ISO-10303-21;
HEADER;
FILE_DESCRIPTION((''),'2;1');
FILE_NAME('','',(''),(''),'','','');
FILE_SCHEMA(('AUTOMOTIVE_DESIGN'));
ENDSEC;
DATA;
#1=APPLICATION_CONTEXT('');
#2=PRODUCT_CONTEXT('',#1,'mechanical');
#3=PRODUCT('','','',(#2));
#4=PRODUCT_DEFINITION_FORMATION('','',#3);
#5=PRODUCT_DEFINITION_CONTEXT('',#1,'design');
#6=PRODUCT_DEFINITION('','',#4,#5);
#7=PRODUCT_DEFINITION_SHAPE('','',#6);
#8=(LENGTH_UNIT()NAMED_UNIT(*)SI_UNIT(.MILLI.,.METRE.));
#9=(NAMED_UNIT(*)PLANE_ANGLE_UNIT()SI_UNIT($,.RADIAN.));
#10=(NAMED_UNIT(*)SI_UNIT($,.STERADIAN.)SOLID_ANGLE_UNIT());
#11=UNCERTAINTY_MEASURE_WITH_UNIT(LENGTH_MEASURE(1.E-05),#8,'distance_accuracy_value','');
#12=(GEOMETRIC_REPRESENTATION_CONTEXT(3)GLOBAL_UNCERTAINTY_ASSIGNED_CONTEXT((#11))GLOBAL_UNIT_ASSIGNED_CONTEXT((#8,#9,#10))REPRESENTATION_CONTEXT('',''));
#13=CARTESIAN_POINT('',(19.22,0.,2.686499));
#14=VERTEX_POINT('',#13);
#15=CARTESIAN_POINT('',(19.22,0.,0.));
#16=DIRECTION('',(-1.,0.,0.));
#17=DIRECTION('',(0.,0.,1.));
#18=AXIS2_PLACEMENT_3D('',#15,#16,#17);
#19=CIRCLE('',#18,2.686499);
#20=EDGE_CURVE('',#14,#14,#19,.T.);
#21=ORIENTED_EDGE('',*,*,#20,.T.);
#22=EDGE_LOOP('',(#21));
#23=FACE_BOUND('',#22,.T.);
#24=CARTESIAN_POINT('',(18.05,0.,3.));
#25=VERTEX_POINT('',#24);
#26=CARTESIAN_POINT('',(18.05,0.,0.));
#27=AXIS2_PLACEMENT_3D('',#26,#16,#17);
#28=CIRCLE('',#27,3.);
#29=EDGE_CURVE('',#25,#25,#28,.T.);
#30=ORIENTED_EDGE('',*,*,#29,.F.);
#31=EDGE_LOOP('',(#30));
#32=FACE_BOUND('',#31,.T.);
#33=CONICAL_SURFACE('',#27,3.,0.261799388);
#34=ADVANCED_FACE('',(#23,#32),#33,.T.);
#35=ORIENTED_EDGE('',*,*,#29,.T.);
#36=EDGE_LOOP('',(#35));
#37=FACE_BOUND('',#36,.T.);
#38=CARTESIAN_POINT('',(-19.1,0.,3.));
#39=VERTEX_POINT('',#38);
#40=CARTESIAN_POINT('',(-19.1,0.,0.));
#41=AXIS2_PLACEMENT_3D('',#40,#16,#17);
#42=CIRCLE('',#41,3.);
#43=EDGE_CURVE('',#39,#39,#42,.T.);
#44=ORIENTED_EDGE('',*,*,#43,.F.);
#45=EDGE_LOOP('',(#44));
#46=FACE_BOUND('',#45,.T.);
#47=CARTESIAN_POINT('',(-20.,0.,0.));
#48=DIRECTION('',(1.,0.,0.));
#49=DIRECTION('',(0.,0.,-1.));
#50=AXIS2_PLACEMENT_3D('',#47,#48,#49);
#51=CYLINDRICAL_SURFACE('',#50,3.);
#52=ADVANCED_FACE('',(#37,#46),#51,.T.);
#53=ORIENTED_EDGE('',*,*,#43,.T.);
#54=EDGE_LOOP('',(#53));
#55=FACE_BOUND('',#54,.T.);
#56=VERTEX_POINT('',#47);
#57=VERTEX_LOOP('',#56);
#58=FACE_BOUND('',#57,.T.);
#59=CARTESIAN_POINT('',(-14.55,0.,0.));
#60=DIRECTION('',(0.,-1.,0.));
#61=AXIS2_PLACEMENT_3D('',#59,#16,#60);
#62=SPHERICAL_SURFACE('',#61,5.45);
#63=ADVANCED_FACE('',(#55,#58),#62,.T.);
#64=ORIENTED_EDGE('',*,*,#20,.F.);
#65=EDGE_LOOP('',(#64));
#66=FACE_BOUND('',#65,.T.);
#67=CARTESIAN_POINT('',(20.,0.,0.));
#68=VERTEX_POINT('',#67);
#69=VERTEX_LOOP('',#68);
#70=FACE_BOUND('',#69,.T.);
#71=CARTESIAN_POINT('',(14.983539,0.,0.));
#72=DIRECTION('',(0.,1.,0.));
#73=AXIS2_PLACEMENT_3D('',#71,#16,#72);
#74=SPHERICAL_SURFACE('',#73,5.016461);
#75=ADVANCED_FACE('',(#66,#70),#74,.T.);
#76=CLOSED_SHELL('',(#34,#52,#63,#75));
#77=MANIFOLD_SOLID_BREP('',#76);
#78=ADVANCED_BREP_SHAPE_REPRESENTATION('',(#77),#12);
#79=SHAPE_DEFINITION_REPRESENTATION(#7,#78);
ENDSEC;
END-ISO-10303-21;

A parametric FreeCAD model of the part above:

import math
import FreeCAD as App
import Part
import Sketcher

V = App.Vector
Q = App.Units.Quantity

doc = App.newDocument("Part")
body = doc.addObject("PartDesign::Body", "Body")

# Sketch on YZ plane
sketch1 = doc.addObject("Sketcher::SketchObject", "Sketch")
body.addObject(sketch1)
sketch1.AttachmentSupport = (doc.YZ_Plane, [""])
sketch1.MapMode = "FlatFace"
sketch1.addGeometry(Part.Circle(V(0, 0, 0), V(0, 0, 1), 3), False)
sketch1.addConstraint([
    Sketcher.Constraint("Coincident", 0, 3, -1, 1),
    Sketcher.Constraint("Diameter", 0, Q("6 mm")),
])
pad1 = doc.addObject("PartDesign::Pad", "Pad")
body.addObject(pad1)
pad1.Profile = sketch1
pad1.Type = "TwoLengths"
pad1.Length = 20
pad1.Length2 = 20

# Sketch on XY plane
sketch2 = doc.addObject("Sketcher::SketchObject", "Sketch001")
body.addObject(sketch2)
sketch2.AttachmentSupport = (doc.XY_Plane, [""])
sketch2.MapMode = "FlatFace"
sketch2.addGeometry([
    Part.LineSegment(V(18.1, 3.5, 0), V(18.1, 3, 0)),  # 0
    Part.LineSegment(V(18.1, 3, 0), V(19.2, 2.7, 0)),  # 1
    Part.ArcOfCircle(Part.Circle(V(15, 0, 0), V(0, 0, 1), 5), math.radians(0), math.radians(32)),  # 2
    Part.LineSegment(V(20, 0, 0), V(20.5, 0, 0)),  # 3
    Part.LineSegment(V(20.5, 0, 0), V(20.5, 3.5, 0)),  # 4
    Part.LineSegment(V(20.5, 3.5, 0), V(18.1, 3.5, 0)),  # 5
    Part.LineSegment(V(-19.1, 3, 0), V(-19.1, 3.5, 0)),  # 6
    Part.LineSegment(V(-19.1, 3.5, 0), V(-20.5, 3.5, 0)),  # 7
    Part.LineSegment(V(-20.5, 3.5, 0), V(-20.5, 0, 0)),  # 8
    Part.LineSegment(V(-20.5, 0, 0), V(-20, 0, 0)),  # 9
    Part.ArcOfCircle(Part.Circle(V(-14.5, 0, 0), V(0, 0, 1), 5.5), math.radians(147), math.radians(180)),  # 10
], False)
sketch2.addConstraint([
    Sketcher.Constraint("Coincident", 0, 2, 1, 1),
    Sketcher.Constraint("Coincident", 1, 2, 2, 2),
    Sketcher.Constraint("Coincident", 2, 1, 3, 1),
    Sketcher.Constraint("Coincident", 3, 2, 4, 1),
    Sketcher.Constraint("Coincident", 4, 2, 5, 1),
    Sketcher.Constraint("Coincident", 5, 2, 0, 1),
    Sketcher.Constraint("Coincident", 6, 2, 7, 1),
    Sketcher.Constraint("Coincident", 7, 2, 8, 1),
    Sketcher.Constraint("Coincident", 8, 2, 9, 1),
    Sketcher.Constraint("Coincident", 9, 2, 10, 2),
    Sketcher.Constraint("Coincident", 10, 1, 6, 1),
    Sketcher.Constraint("Vertical", 0),
    Sketcher.Constraint("Horizontal", 3),
    Sketcher.Constraint("Vertical", 4),
    Sketcher.Constraint("Horizontal", 5),
    Sketcher.Constraint("Vertical", 6),
    Sketcher.Constraint("Horizontal", 7),
    Sketcher.Constraint("Vertical", 8),
    Sketcher.Constraint("Horizontal", 9),
    Sketcher.Constraint("Symmetric", 3, 2, 8, 2, -1, 1),
    Sketcher.Constraint("Symmetric", 2, 1, 9, 2, -2),
    Sketcher.Constraint("PointOnObject", 2, 3, -1),
    Sketcher.Constraint("PointOnObject", 10, 3, -1),
    Sketcher.Constraint("Horizontal", 5, 2, 6, 2),
    Sketcher.Constraint("Horizontal", 0, 2, 10, 1),
    Sketcher.Constraint("Equal", 9, 0),
    Sketcher.Constraint("Angle", 1, Q("-15 deg")),
    Sketcher.Constraint("Radius", 10, Q("5.45 mm")),
    Sketcher.Constraint("DistanceX", 3, 1, 3, 2, Q("0.5 mm")),
    Sketcher.Constraint("DistanceX", 7, 2, 7, 1, Q("1.4 mm")),
    Sketcher.Constraint("DistanceX", -1, 1, 2, 1, Q("20 mm")),
    Sketcher.Constraint("DistanceX", 5, 2, 5, 1, Q("2.45 mm")),
    Sketcher.Constraint("DistanceX", -1, 1, 1, 2, Q("19.22 mm")),
])
groove = doc.addObject("PartDesign::Groove", "Groove")
body.addObject(groove)
groove.Profile = sketch2
groove.ReferenceAxis = (sketch2, ["H_Axis"])
groove.Angle = 360

doc.recompute()
